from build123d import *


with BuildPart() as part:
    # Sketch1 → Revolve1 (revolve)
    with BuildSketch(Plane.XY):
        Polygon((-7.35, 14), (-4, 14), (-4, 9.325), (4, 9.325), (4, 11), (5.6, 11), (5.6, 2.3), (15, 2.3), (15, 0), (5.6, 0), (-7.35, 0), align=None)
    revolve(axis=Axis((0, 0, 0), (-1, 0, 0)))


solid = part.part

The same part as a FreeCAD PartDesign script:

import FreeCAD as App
import Part
import Sketcher

V = App.Vector

doc = App.newDocument("Part")
params = doc.addObject("Spreadsheet::Sheet", "Params")
for row, (alias, value) in enumerate([
    ("sketch1_width", "8 mm"),
    ("sketch1_height", "14 mm"),
    ("sketch1_width2", "9.4 mm"),
    ("sketch1_width3", "1.6 mm"),
    ("sketch1_height2", "2.3 mm"),
    ("revolution_angle", "360 deg"),
], start=1):
    params.set(f"A{row}", alias)
    params.set(f"B{row}", "=" + value)
    params.setAlias(f"B{row}", alias)

body = doc.addObject("PartDesign::Body", "Body")

sketch1 = body.newObject("Sketcher::SketchObject", "Sketch")
sketch1.AttachmentSupport = (doc.getObject("XY_Plane"), [""])
sketch1.MapMode = "FlatFace"
sketch1.addGeometry([
    Part.LineSegment(V(-4, 14, 0), V(-7.3, 14, 0)),
    Part.LineSegment(V(-7.3, 14, 0), V(-7.3, 0, 0)),
    Part.LineSegment(V(-7.3, 0, 0), V(15, 0, 0)),
    Part.LineSegment(V(15, 0, 0), V(15, 2.3, 0)),
    Part.LineSegment(V(15, 2.3, 0), V(5.6, 2.3, 0)),
    Part.LineSegment(V(5.6, 2.3, 0), V(5.6, 11, 0)),
    Part.LineSegment(V(5.6, 11, 0), V(4, 11, 0)),
    Part.LineSegment(V(4, 11, 0), V(4, 9.3, 0)),
    Part.LineSegment(V(4, 9.3, 0), V(-4, 9.3, 0)),
    Part.LineSegment(V(-4, 9.3, 0), V(-4, 14, 0)),
], False)
sketch1.addConstraint([
    Sketcher.Constraint("Coincident", 0, 2, 1, 1),
    Sketcher.Constraint("Coincident", 1, 2, 2, 1),
    Sketcher.Constraint("Coincident", 2, 2, 3, 1),
    Sketcher.Constraint("Coincident", 3, 2, 4, 1),
    Sketcher.Constraint("Coincident", 4, 2, 5, 1),
    Sketcher.Constraint("Coincident", 5, 2, 6, 1),
    Sketcher.Constraint("Coincident", 6, 2, 7, 1),
    Sketcher.Constraint("Coincident", 7, 2, 8, 1),
    Sketcher.Constraint("Coincident", 8, 2, 9, 1),
    Sketcher.Constraint("Coincident", 9, 2, 0, 1),
    Sketcher.Constraint("Horizontal", 0),
    Sketcher.Constraint("Vertical", 1),
    Sketcher.Constraint("Horizontal", 2),
    Sketcher.Constraint("Vertical", 3),
    Sketcher.Constraint("Horizontal", 4),
    Sketcher.Constraint("Vertical", 5),
    Sketcher.Constraint("Horizontal", 6),
    Sketcher.Constraint("Vertical", 7),
    Sketcher.Constraint("Horizontal", 8),
    Sketcher.Constraint("Vertical", 9),
    Sketcher.Constraint("PointOnObject", 1, 2, -1),
    Sketcher.Constraint("DistanceX", 8, 2, 8, 1, 8.0),
    Sketcher.Constraint("DistanceY", 1, 2, 1, 1, 14.0),
    Sketcher.Constraint("DistanceX", 4, 2, 4, 1, 9.4),
    Sketcher.Constraint("DistanceX", 6, 2, 6, 1, 1.6),
    Sketcher.Constraint("DistanceY", 3, 1, 3, 2, 2.3),
    Sketcher.Constraint("DistanceY", 5, 1, 5, 2, 8.7),
    Sketcher.Constraint("DistanceX", -1, 1, 2, 2, 15.0),
    Sketcher.Constraint("DistanceX", 0, 2, 0, 1, 3.35),
    Sketcher.Constraint("DistanceY", 7, 2, 7, 1, 1.675),
])
sketch1.setExpression("Constraints[21]", "Params.sketch1_width")
sketch1.setExpression("Constraints[22]", "Params.sketch1_height")
sketch1.setExpression("Constraints[23]", "Params.sketch1_width2")
sketch1.setExpression("Constraints[24]", "Params.sketch1_width3")
sketch1.setExpression("Constraints[25]", "Params.sketch1_height2")
revolution = body.newObject("PartDesign::Revolution", "Revolution")
revolution.Profile = sketch1
revolution.ReferenceAxis = (sketch1, ["H_Axis"])
revolution.setExpression("Angle", "Params.revolution_angle")

doc.recompute()
